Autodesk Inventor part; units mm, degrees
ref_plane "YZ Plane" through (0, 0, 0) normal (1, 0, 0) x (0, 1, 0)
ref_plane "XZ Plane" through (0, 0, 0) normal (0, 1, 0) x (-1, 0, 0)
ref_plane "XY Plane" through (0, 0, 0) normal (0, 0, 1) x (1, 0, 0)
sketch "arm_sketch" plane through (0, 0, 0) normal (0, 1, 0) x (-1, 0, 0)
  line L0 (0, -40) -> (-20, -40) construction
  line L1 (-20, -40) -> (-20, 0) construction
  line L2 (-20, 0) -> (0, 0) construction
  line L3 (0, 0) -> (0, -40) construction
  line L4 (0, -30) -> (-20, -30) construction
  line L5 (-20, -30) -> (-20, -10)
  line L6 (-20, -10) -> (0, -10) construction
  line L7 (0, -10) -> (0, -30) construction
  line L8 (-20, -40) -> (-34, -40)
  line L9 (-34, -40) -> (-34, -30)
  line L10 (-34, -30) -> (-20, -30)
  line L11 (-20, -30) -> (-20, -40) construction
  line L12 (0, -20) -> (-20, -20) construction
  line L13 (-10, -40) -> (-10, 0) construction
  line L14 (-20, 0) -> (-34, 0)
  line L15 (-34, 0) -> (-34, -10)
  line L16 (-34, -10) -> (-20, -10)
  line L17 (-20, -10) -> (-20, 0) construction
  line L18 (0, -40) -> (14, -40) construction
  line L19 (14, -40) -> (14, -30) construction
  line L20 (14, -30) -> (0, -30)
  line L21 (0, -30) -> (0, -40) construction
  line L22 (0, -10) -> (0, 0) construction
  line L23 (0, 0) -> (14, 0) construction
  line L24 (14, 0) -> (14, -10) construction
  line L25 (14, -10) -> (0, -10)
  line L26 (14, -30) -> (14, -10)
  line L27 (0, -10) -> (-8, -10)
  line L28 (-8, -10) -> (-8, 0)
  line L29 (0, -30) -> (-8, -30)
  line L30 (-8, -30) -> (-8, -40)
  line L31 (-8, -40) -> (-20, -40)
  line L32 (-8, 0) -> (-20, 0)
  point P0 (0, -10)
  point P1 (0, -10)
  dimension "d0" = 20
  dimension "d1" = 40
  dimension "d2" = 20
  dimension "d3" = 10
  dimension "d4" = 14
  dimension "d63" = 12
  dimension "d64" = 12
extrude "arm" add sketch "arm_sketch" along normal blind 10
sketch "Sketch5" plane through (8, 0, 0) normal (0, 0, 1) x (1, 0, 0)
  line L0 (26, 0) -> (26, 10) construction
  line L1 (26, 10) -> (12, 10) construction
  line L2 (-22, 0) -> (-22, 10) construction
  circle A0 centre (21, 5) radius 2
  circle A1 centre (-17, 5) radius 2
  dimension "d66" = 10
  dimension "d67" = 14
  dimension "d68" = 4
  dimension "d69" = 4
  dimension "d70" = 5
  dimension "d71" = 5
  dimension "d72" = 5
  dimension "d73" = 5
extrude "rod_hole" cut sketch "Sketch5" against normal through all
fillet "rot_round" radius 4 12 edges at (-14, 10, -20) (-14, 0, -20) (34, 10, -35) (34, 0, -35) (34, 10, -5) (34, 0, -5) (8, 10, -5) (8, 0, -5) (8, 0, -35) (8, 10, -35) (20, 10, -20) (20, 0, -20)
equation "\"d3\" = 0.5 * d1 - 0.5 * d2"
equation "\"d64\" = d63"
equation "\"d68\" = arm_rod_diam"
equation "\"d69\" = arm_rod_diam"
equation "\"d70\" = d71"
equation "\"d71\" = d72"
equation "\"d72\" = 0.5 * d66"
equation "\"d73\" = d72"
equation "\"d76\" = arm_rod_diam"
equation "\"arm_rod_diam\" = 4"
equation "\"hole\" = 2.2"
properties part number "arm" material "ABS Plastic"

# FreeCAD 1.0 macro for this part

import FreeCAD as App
import Part
import Sketcher
from FreeCAD import Vector


def edges_at(feature, points):
    """Names of the edges that pass closest to the given points."""
    edges = feature.Shape.Edges
    near = lambda p: min(range(len(edges)), key=lambda i: edges[i].distToShape(Part.Vertex(*p))[0])
    return sorted({f"Edge{near(p) + 1}" for p in points})


def add_polygon(sketch, points):
    """Adds a closed chain of lines whose ends are joined by coincident constraints."""
    first, n = sketch.GeometryCount, len(points)
    for a, b in zip(points, points[1:] + points[:1]):
        sketch.addGeometry(Part.LineSegment(App.Vector(*a, 0), App.Vector(*b, 0)), False)
    for i in range(n):
        sketch.addConstraint(Sketcher.Constraint("Coincident", first + i, 2, first + (i + 1) % n, 1))

doc = App.newDocument("Part")
body = doc.addObject("PartDesign::Body", "Body")

# Sketch on XZ plane
sketch1 = body.newObject("Sketcher::SketchObject", "Sketch")
sketch1.AttachmentSupport = (doc.getObject("XZ_Plane"), [""])
sketch1.MapMode = "FlatFace"
add_polygon(sketch1, [(20, -10), (20, -30), (34, -30), (34, -40), (8, -40), (8, -30), (-14, -30), (-14, -10), (8, -10), (8, 0), (34, 0), (34, -10)])  # lines 0-11
sketch1.addConstraint([
    Sketcher.Constraint("Vertical", 0),
    Sketcher.Constraint("Horizontal", 1),
    Sketcher.Constraint("Vertical", 2),
    Sketcher.Constraint("Horizontal", 3),
    Sketcher.Constraint("Vertical", 4),
    Sketcher.Constraint("Horizontal", 5),
    Sketcher.Constraint("Vertical", 6),
    Sketcher.Constraint("Horizontal", 7),
    Sketcher.Constraint("Vertical", 8),
    Sketcher.Constraint("Horizontal", 9),
    Sketcher.Constraint("Vertical", 10),
    Sketcher.Constraint("Horizontal", 11),
    Sketcher.Constraint("PointOnObject", 8, 2, -1),
    Sketcher.Constraint("Horizontal", 1, 2, 4, 2),
    Sketcher.Constraint("Horizontal", 7, 2, 10, 2),
    Sketcher.Constraint("Vertical", 4, 2, 7, 2),
    Sketcher.Constraint("Vertical", 2, 2, 9, 2),
    Sketcher.Constraint("Equal", 4, 8),
    Sketcher.Constraint("DistanceX", 1, 1, 1, 2, 14.0),
    Sketcher.Constraint("DistanceY", 0, 2, 0, 1, 20.0),
    Sketcher.Constraint("DistanceY", 2, 2, 2, 1, 10.0),
    Sketcher.Constraint("DistanceX", -1, 1, 0, 2, 20.0),
    Sketcher.Constraint("DistanceX", 5, 2, -1, 1, 14.0),
    Sketcher.Constraint("DistanceX", 3, 2, 0, 2, 12.0),
])
pad1 = body.newObject("PartDesign::Pad", "Pad")
pad1.Profile = sketch1
pad1.Length = 10
pad1.Reversed = True

# Sketch on XY plane
sketch2 = body.newObject("Sketcher::SketchObject", "Sketch001")
sketch2.AttachmentSupport = (doc.getObject("XY_Plane"), [""])
sketch2.MapMode = "FlatFace"
sketch2.addGeometry([
    Part.Circle(Vector(29, 5, 0), Vector(0, 0, 1), 2),
    Part.Circle(Vector(-9, 5, 0), Vector(0, 0, 1), 2),
], False)
sketch2.addConstraint([
    Sketcher.Constraint("Equal", 0, 1),
    Sketcher.Constraint("Horizontal", 0, 3, 1, 3),
    Sketcher.Constraint("Diameter", 0, 4.0),
    Sketcher.Constraint("DistanceY", -1, 1, 0, 3, 5.0),
    Sketcher.Constraint("DistanceX", -1, 1, 0, 3, 29.0),
    Sketcher.Constraint("DistanceX", 1, 3, -1, 1, 9.0),
])
pocket1 = body.newObject("PartDesign::Pocket", "Pocket")
pocket1.Profile = sketch2
pocket1.Type = "ThroughAll"
doc.recompute()

fillet = body.newObject("PartDesign::Fillet", "Fillet")
fillet.Base = (pocket1, edges_at(pocket1, [
    (-14, 10, -20),
    (-14, 0, -20),
    (34, 10, -35),
    (34, 0, -35),
    (34, 10, -5),
    (34, 0, -5),
    (8, 10, -5),
    (8, 0, -5),
    (8, 0, -35),
    (8, 10, -35),
    (20, 10, -20),
    (20, 0, -20),
]))
fillet.Radius = 4

doc.recompute()
